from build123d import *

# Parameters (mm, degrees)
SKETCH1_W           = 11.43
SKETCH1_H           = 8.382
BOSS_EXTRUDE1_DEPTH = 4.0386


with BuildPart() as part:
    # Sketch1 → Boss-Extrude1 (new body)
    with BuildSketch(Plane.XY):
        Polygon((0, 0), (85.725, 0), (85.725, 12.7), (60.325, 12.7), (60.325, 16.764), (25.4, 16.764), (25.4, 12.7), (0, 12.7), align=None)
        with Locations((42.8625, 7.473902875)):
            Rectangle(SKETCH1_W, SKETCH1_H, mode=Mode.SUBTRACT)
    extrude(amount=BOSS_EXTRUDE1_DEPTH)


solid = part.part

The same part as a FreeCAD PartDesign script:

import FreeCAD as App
import Part
import Sketcher
from FreeCAD import Vector
Q = App.Units.Quantity


def add_polygon(sketch, points):
    """Adds a closed chain of lines whose ends are joined by coincident constraints."""
    first, n = sketch.GeometryCount, len(points)
    for a, b in zip(points, points[1:] + points[:1]):
        sketch.addGeometry(Part.LineSegment(App.Vector(*a, 0), App.Vector(*b, 0)), False)
    for i in range(n):
        sketch.addConstraint(Sketcher.Constraint("Coincident", first + i, 2, first + (i + 1) % n, 1))

doc = App.newDocument("Part")
params = doc.addObject("Spreadsheet::Sheet", "Params")
for row, (alias, value) in enumerate([
    ("sketch1_width", "1 in"),
    ("sketch1_height", "0.5 in"),
    ("sketch1_width2", "0.45 in"),
    ("sketch1_height2", "0.16 in"),
    ("sketch1_height3", "0.33 in"),
    ("pad1_length", "0.159 in"),
], start=1):
    params.set(f"A{row}", alias)
    params.set(f"B{row}", "=" + value)
    params.setAlias(f"B{row}", alias)

body = doc.addObject("PartDesign::Body", "Body")

# Sketch on XY plane
sketch1 = doc.addObject("Sketcher::SketchObject", "Sketch")
body.addObject(sketch1)
sketch1.AttachmentSupport = (doc.XY_Plane, [""])
sketch1.MapMode = "FlatFace"
add_polygon(sketch1, [(0, 0), (85.7, 0), (85.7, 12.7), (60.3, 12.7), (60.3, 16.8), (25.4, 16.8), (25.4, 12.7), (0, 12.7)])  # lines 0-7
add_polygon(sketch1, [(48.6, 3.3), (37.1, 3.3), (37.1, 11.7), (48.6, 11.7)])  # lines 8-11
sketch1.addConstraint([
    Sketcher.Constraint("Horizontal", 0),
    Sketcher.Constraint("Vertical", 1),
    Sketcher.Constraint("Horizontal", 2),
    Sketcher.Constraint("Vertical", 3),
    Sketcher.Constraint("Horizontal", 4),
    Sketcher.Constraint("Vertical", 5),
    Sketcher.Constraint("Horizontal", 6),
    Sketcher.Constraint("Vertical", 7),
    Sketcher.Constraint("Horizontal", 8),
    Sketcher.Constraint("Vertical", 9),
    Sketcher.Constraint("Horizontal", 10),
    Sketcher.Constraint("Vertical", 11),
    Sketcher.Constraint("Coincident", 7, 2, -1, 1),
    Sketcher.Constraint("Horizontal", 2, 2, 5, 2),
    Sketcher.Constraint("Equal", 2, 6),
    Sketcher.Constraint("DistanceX", 2, 2, 2, 1, Q("1 in")),
    Sketcher.Constraint("DistanceY", 1, 1, 1, 2, Q("0.5 in")),
    Sketcher.Constraint("DistanceX", 8, 2, 8, 1, Q("0.45 in")),
    Sketcher.Constraint("DistanceY", 3, 1, 3, 2, Q("0.16 in")),
    Sketcher.Constraint("DistanceY", 9, 1, 9, 2, Q("0.33 in")),
    Sketcher.Constraint("DistanceX", 0, 1, 0, 2, Q("3.375 in")),
    Sketcher.Constraint("DistanceX", -1, 1, 8, 2, Q("1.4625 in")),
    Sketcher.Constraint("DistanceY", -1, 1, 8, 2, Q("3.282903 mm")),
])
sketch1.setExpression("Constraints[27]", "Params.sketch1_width")
sketch1.setExpression("Constraints[28]", "Params.sketch1_height")
sketch1.setExpression("Constraints[29]", "Params.sketch1_width2")
sketch1.setExpression("Constraints[30]", "Params.sketch1_height2")
sketch1.setExpression("Constraints[31]", "Params.sketch1_height3")
pad1 = doc.addObject("PartDesign::Pad", "Pad")
body.addObject(pad1)
pad1.Profile = sketch1
pad1.setExpression("Length", "Params.pad1_length")

doc.recompute()
